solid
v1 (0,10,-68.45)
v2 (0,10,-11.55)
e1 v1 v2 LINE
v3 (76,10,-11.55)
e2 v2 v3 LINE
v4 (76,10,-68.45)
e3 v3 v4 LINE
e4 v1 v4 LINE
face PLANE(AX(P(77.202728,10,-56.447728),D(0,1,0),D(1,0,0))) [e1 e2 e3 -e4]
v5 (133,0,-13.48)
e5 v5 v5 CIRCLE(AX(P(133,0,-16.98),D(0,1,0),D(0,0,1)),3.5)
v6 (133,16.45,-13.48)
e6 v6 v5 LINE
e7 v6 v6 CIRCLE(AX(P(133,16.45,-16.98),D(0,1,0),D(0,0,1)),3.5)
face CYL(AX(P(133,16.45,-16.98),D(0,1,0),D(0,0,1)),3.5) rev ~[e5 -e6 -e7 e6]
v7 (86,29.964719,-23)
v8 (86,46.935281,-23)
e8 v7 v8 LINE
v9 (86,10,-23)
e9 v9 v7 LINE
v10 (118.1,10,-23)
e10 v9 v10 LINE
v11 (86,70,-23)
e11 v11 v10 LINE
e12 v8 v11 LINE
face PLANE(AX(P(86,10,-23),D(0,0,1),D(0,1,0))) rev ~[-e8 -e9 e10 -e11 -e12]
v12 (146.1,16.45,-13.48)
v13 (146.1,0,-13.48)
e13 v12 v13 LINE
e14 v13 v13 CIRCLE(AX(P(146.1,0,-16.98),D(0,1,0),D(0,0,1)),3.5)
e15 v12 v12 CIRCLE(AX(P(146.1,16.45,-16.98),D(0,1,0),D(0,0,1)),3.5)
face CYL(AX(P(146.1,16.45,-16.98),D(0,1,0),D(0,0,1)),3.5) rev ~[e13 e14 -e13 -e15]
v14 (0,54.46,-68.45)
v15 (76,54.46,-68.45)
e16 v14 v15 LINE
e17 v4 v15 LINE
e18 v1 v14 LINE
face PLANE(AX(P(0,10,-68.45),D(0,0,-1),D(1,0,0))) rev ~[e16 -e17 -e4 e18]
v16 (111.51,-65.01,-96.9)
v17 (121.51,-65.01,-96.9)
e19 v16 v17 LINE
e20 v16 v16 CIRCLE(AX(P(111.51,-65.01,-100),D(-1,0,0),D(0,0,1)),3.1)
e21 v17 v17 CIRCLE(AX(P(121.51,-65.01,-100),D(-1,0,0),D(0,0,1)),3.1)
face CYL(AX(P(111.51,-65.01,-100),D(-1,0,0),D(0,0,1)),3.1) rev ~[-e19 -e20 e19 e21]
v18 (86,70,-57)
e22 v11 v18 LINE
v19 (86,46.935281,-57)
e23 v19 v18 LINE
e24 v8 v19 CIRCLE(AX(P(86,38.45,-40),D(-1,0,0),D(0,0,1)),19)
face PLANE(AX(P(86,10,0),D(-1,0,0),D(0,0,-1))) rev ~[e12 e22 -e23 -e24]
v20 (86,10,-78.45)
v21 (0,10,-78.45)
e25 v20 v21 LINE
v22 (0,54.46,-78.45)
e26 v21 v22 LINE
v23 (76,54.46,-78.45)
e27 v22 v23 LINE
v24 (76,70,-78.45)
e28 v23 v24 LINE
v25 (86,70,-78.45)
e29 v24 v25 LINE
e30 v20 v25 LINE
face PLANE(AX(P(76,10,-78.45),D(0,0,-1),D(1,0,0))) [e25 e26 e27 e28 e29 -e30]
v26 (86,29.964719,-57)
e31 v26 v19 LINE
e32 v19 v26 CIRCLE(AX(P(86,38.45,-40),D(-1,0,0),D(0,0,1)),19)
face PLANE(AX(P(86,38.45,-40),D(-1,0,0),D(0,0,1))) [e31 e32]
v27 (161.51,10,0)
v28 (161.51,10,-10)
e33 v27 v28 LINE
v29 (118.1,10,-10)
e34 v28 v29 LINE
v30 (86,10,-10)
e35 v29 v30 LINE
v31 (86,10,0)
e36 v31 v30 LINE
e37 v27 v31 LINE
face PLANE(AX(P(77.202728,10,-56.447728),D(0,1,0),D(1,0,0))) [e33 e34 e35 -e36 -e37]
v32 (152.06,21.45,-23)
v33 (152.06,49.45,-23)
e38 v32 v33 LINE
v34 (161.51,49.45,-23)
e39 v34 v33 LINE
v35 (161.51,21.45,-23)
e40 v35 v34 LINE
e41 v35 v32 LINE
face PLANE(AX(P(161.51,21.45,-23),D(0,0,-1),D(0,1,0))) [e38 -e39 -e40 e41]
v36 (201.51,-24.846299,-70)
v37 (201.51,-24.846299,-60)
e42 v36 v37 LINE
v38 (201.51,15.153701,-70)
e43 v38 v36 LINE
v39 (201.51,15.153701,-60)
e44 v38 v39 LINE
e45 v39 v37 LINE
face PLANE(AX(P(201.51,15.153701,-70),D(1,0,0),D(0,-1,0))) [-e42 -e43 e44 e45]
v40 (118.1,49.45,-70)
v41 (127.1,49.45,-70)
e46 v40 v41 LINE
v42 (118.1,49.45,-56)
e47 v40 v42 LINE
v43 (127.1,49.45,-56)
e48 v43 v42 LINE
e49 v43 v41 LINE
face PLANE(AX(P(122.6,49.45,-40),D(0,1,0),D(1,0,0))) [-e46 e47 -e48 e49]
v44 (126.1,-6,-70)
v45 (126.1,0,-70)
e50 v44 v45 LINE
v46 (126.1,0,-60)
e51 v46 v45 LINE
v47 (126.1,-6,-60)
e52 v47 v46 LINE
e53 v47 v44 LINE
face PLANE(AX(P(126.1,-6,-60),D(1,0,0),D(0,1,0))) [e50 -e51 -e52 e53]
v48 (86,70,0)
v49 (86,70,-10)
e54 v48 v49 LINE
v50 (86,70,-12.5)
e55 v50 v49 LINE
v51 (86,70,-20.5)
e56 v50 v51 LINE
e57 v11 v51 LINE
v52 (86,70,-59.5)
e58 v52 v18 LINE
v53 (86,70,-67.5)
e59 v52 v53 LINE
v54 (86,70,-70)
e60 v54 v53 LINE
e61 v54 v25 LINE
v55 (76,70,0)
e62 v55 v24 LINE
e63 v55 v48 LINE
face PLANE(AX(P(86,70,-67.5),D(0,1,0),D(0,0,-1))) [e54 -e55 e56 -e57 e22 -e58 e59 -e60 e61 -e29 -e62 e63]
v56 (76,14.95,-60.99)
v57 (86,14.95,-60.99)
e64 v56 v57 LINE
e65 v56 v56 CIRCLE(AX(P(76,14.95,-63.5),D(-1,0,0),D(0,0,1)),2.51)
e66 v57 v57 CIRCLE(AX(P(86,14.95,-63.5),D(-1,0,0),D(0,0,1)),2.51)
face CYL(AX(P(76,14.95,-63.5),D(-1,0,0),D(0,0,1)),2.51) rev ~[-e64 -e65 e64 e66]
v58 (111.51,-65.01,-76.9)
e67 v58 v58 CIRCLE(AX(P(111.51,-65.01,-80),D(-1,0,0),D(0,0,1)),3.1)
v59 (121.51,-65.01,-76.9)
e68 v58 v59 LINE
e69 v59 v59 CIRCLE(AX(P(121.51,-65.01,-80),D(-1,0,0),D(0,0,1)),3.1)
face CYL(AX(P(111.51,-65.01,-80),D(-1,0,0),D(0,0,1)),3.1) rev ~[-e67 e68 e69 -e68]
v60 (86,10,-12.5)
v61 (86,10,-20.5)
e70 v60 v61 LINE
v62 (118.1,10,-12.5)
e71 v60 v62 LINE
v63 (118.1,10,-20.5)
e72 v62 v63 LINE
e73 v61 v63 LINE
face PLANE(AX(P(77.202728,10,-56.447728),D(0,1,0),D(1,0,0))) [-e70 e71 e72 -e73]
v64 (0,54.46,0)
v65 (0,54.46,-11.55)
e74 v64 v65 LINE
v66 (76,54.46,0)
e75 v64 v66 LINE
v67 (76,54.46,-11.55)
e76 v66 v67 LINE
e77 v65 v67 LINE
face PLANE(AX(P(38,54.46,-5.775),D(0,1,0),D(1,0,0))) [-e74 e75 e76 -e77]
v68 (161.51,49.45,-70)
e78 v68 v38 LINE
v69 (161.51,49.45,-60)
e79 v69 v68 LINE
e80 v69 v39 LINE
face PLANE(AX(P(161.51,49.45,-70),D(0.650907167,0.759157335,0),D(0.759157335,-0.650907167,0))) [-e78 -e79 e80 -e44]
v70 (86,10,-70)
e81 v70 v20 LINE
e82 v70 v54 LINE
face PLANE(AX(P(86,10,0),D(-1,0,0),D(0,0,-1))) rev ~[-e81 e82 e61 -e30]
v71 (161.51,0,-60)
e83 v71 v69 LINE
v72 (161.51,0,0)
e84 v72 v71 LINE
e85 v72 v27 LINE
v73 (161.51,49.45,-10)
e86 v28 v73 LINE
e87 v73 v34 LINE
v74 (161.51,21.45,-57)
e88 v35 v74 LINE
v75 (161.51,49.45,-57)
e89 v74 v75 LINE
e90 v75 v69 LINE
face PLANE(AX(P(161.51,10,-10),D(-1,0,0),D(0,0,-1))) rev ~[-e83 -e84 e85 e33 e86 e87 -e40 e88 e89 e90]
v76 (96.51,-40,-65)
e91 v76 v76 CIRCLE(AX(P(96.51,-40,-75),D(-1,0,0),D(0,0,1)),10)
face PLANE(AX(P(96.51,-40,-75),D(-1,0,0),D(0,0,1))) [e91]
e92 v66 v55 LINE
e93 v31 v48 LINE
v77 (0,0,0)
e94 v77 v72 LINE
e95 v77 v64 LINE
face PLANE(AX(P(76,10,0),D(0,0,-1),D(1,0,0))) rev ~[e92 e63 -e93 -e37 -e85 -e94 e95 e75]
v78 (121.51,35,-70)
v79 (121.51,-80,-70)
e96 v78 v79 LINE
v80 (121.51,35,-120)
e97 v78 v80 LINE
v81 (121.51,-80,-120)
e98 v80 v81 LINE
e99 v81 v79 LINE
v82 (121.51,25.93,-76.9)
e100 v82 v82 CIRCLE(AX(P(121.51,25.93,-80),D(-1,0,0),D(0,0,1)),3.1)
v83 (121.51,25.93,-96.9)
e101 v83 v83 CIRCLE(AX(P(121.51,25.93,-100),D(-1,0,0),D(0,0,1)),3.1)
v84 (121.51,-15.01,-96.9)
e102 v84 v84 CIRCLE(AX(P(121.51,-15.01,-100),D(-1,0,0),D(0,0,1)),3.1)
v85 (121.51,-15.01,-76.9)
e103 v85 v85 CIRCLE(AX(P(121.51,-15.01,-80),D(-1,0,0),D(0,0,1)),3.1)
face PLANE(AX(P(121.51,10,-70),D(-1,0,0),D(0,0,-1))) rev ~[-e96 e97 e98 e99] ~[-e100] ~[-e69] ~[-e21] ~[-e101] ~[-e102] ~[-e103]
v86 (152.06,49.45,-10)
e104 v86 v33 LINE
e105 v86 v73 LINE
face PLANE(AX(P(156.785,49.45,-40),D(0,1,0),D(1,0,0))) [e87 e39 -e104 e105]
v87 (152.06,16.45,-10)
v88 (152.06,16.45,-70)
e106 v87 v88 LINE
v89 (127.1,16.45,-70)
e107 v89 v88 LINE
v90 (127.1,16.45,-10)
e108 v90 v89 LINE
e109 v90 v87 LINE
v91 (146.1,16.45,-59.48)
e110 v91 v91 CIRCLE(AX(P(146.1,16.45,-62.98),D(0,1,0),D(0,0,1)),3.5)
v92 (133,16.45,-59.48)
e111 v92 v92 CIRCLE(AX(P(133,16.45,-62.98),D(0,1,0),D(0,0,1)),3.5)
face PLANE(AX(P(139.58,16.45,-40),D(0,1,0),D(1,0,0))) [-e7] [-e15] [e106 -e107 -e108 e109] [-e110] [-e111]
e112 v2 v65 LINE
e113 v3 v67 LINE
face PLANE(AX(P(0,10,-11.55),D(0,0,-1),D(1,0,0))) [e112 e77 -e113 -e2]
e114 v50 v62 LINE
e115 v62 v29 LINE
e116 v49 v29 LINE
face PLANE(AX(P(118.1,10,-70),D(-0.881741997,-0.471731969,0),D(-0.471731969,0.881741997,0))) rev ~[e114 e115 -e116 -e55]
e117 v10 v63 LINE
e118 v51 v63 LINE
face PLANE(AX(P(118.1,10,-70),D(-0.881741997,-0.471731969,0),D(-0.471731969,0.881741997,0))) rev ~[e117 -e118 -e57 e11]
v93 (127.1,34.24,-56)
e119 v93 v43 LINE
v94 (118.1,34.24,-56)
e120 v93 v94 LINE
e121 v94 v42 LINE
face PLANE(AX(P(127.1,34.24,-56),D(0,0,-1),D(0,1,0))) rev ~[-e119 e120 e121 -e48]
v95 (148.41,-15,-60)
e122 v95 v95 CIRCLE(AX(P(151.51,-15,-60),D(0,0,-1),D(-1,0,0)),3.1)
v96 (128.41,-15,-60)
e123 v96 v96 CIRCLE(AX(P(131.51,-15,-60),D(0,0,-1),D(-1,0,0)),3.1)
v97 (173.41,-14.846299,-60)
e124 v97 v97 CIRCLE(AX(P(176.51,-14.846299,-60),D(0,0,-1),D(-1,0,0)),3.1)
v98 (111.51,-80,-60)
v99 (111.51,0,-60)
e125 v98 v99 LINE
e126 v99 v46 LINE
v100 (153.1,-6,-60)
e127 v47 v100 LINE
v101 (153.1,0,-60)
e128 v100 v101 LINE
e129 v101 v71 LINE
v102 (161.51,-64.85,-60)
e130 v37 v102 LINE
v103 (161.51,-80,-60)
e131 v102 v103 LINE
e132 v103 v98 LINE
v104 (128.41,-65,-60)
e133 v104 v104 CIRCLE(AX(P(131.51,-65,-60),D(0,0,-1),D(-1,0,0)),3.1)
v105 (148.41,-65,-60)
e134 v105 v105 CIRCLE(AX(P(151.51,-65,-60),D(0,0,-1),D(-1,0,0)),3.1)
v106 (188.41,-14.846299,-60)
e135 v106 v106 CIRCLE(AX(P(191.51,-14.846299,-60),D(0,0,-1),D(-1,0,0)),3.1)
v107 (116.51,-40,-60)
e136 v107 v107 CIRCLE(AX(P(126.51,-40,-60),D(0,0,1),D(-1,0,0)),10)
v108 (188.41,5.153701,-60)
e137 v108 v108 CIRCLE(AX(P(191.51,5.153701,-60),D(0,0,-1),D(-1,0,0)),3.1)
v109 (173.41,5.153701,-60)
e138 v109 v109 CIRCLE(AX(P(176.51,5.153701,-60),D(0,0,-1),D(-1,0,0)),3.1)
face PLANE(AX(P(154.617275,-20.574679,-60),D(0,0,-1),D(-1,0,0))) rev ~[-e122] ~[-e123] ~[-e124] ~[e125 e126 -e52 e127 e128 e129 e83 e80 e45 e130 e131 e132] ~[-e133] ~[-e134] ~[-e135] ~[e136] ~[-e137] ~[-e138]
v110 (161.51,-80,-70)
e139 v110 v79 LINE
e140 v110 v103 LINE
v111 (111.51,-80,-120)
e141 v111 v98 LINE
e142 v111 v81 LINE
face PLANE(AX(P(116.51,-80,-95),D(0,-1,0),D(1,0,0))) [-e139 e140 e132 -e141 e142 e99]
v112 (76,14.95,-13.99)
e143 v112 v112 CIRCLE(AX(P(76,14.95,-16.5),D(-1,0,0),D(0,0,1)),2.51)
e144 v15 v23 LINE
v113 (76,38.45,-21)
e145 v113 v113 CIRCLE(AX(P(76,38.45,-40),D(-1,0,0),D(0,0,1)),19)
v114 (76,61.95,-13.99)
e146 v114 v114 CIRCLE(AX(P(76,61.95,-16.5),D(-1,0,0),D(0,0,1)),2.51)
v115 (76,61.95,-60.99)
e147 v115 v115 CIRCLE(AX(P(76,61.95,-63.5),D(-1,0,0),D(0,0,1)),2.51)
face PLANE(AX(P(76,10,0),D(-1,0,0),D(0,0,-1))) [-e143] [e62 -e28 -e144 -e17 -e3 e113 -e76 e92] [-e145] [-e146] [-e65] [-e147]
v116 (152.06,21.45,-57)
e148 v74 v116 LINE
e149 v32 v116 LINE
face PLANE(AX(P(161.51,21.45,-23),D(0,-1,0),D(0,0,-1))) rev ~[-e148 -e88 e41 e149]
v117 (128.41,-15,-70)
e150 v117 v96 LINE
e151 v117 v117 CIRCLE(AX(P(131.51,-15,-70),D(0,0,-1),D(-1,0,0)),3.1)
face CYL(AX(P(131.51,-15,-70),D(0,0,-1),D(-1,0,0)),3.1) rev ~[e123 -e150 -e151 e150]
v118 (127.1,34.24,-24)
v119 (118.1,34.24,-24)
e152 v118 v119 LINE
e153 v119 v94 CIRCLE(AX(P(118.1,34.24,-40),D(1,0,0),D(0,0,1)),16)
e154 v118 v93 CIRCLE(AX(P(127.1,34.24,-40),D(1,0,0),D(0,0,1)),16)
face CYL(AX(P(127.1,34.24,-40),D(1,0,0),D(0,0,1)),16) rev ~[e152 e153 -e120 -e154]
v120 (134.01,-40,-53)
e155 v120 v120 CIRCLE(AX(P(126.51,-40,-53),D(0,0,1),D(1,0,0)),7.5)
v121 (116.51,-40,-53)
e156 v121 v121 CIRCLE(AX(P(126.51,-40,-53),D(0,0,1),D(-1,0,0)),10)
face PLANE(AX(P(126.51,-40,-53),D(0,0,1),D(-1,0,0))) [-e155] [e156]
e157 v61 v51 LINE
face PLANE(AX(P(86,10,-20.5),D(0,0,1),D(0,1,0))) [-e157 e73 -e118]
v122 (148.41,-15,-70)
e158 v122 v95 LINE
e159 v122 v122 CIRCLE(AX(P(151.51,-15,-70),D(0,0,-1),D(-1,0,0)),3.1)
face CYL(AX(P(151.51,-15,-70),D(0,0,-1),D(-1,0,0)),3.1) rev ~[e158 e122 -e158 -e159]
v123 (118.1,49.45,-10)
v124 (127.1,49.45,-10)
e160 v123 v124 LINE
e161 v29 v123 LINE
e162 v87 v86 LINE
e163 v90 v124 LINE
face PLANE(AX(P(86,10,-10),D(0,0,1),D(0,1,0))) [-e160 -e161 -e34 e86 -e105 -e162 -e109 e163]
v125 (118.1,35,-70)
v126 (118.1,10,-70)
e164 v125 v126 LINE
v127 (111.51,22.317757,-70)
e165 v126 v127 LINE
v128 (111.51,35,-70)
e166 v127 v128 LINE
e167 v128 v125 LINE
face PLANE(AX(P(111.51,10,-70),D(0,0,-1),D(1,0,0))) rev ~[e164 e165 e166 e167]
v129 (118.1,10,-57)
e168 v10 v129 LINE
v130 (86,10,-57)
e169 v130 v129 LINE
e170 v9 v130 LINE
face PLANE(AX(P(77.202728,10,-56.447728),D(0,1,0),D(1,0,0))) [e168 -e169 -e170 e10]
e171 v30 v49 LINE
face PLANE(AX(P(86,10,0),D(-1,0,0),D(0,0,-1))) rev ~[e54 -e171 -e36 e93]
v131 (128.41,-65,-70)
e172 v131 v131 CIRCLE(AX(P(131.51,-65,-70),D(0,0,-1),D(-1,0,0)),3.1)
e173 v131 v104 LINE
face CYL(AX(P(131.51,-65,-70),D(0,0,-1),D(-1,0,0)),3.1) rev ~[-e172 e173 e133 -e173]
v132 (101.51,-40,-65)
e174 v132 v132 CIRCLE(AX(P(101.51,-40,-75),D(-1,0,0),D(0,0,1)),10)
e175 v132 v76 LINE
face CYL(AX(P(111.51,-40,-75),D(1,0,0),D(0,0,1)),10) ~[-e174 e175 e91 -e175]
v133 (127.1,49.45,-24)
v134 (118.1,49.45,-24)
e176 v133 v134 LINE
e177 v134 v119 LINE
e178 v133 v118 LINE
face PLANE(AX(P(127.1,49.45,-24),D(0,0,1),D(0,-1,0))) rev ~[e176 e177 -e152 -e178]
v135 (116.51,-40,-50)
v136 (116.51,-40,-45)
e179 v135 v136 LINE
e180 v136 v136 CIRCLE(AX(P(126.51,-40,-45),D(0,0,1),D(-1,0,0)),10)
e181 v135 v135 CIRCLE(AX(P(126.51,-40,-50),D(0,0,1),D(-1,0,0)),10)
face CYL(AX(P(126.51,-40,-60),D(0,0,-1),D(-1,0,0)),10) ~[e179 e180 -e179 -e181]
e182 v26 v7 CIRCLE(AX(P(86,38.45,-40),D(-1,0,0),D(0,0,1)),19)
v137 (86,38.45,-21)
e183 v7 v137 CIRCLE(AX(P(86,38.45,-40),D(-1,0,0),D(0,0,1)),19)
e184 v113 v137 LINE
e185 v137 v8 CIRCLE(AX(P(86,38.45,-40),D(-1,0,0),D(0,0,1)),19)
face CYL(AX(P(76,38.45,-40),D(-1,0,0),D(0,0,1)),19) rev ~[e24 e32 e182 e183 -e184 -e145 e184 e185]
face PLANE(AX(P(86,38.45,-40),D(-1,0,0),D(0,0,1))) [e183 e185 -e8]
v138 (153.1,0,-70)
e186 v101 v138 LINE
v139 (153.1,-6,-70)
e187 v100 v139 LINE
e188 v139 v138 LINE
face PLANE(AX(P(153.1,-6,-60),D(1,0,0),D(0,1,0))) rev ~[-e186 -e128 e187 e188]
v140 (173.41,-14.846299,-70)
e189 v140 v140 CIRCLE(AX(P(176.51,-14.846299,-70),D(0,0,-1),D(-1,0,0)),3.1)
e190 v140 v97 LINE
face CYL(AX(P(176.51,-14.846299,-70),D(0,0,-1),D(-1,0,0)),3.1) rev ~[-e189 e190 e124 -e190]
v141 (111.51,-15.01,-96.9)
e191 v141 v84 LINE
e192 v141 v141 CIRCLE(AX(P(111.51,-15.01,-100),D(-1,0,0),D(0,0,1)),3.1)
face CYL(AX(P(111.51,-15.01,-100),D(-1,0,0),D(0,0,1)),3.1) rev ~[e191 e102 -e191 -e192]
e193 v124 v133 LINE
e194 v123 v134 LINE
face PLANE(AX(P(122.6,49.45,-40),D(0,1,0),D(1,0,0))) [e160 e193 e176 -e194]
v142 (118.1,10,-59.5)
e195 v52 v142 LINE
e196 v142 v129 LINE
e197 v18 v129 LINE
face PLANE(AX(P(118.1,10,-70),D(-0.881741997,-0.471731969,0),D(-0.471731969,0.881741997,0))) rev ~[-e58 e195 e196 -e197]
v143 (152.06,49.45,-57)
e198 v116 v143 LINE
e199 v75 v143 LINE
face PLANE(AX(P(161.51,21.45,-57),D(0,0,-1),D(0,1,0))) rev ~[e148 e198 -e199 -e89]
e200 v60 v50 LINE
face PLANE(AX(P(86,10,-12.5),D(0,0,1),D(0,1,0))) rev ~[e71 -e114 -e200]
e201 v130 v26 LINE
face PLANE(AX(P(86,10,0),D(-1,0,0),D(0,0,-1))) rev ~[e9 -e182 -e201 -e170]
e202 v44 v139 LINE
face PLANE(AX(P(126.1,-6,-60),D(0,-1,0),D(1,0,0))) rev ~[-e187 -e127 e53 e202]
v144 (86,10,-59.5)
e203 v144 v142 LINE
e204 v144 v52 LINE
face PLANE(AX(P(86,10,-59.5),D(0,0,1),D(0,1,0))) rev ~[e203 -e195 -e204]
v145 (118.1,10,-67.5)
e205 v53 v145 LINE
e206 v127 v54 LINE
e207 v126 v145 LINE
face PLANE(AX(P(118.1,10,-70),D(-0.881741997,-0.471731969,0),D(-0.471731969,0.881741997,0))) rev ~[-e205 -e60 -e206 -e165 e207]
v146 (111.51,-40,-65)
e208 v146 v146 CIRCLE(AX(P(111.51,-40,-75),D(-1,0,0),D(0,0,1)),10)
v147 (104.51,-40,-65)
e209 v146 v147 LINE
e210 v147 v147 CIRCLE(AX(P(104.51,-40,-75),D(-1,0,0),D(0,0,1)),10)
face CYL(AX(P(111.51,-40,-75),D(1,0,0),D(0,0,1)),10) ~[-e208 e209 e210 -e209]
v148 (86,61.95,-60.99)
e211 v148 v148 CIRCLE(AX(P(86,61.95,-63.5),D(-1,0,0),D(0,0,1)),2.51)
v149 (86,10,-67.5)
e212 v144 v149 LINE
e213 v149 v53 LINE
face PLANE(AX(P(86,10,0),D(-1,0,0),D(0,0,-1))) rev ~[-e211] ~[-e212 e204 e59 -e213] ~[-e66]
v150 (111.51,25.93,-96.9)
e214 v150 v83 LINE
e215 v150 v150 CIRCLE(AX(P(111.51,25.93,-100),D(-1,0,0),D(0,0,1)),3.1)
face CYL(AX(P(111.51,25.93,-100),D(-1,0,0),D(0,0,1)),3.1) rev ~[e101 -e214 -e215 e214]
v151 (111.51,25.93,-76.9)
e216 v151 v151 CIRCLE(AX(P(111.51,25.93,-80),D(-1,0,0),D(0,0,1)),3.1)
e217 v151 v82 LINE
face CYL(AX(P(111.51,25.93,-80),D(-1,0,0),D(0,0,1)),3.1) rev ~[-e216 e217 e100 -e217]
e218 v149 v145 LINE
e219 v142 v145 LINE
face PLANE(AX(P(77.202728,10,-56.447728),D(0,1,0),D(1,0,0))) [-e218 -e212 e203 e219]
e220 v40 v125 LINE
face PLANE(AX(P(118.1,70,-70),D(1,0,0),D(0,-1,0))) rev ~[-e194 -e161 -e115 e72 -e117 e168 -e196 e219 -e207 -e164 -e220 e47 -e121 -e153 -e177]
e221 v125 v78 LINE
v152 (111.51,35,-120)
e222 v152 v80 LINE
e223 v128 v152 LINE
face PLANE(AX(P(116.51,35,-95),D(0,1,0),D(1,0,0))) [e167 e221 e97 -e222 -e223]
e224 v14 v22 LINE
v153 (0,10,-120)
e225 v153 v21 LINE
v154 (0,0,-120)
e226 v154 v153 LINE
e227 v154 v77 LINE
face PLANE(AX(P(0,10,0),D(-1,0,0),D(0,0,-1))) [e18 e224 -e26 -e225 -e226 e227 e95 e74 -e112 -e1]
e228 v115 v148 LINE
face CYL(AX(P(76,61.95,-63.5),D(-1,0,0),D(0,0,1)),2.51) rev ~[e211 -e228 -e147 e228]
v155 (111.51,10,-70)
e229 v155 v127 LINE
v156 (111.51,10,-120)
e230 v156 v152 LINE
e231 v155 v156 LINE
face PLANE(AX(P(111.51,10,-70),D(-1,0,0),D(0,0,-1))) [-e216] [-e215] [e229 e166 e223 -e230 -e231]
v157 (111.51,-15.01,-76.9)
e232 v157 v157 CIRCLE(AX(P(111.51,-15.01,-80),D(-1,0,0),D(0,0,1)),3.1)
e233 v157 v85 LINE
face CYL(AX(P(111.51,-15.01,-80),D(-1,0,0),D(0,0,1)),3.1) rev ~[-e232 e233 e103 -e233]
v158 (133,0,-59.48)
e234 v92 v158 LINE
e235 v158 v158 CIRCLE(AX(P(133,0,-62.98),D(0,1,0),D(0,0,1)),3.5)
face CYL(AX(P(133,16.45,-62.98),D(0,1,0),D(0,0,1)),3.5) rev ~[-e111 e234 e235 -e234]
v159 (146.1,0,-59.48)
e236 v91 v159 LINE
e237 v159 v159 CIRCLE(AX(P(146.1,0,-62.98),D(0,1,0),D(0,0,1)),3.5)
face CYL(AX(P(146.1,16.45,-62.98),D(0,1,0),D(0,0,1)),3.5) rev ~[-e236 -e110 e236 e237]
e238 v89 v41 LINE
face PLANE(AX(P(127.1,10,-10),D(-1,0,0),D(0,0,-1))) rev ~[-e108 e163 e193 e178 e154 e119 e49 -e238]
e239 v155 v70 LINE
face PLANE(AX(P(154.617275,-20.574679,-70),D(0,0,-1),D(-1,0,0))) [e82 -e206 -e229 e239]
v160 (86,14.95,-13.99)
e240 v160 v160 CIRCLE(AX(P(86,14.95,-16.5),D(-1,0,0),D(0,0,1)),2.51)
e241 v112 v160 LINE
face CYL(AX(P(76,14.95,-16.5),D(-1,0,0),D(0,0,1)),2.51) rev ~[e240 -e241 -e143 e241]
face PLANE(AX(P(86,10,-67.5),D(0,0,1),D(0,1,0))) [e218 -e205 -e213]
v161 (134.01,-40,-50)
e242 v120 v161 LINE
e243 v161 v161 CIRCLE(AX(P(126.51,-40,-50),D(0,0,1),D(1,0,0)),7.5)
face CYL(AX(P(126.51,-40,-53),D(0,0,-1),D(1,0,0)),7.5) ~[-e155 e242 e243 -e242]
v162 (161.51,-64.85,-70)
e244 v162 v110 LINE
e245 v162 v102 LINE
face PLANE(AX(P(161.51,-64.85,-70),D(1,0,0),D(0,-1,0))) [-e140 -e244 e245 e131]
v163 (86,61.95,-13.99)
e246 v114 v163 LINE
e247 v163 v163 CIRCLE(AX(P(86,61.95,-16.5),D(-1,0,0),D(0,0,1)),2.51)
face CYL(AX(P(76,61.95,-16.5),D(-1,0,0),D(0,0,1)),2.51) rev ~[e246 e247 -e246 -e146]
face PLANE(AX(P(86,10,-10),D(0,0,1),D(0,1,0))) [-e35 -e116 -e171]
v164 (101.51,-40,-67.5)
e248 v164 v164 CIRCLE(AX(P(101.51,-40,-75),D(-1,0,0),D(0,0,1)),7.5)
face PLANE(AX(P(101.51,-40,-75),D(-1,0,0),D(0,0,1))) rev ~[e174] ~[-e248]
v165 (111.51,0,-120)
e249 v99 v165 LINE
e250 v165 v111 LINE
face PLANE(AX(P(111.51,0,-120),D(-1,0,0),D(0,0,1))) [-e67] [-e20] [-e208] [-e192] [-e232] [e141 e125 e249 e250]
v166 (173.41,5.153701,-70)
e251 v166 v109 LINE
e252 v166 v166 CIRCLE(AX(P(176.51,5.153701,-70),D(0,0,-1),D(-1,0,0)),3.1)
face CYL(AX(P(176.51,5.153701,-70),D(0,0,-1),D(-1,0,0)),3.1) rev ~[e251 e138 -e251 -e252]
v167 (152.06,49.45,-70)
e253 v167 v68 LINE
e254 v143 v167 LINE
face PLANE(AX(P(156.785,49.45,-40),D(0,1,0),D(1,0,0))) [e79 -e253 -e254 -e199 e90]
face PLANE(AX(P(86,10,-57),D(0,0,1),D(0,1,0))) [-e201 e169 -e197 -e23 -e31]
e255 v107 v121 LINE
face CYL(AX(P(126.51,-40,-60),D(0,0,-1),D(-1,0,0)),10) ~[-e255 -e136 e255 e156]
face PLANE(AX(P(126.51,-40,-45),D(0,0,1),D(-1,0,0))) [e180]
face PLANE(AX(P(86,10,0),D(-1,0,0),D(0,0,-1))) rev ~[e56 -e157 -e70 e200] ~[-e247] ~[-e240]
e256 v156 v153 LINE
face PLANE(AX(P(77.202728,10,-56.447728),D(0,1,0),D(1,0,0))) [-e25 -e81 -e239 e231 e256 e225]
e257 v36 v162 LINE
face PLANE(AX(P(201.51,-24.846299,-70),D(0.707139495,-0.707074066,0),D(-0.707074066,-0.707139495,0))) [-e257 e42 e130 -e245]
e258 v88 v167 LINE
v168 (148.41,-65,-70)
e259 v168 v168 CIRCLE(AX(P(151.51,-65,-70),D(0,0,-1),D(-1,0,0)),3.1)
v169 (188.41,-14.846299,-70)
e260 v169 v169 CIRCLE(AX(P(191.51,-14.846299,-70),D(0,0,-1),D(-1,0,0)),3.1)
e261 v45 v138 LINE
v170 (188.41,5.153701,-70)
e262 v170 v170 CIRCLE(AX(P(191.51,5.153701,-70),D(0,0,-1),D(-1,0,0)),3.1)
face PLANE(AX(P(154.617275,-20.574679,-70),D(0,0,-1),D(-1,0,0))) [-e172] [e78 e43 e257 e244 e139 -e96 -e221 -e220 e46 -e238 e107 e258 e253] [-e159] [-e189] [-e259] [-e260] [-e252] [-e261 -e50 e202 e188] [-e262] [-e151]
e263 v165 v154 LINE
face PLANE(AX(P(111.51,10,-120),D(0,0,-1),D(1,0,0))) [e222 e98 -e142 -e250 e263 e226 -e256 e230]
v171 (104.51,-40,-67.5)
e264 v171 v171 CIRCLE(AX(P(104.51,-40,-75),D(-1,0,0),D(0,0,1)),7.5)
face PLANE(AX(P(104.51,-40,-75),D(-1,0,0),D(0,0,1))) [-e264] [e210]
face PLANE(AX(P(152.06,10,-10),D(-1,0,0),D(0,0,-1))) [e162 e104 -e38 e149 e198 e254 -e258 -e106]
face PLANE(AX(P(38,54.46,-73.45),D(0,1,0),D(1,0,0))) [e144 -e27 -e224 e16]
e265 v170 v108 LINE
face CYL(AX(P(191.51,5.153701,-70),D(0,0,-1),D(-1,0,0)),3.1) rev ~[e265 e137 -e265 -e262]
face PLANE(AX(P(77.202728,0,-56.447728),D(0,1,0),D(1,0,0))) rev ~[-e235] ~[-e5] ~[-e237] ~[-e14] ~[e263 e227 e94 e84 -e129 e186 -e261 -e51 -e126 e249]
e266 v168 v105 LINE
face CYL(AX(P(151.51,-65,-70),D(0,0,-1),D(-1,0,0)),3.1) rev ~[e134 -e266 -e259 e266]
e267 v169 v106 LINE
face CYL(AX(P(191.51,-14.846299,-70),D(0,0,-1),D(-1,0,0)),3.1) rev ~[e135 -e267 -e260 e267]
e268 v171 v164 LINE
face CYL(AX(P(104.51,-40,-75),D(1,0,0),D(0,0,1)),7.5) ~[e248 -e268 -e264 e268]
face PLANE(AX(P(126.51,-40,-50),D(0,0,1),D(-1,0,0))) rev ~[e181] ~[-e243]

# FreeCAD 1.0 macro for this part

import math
import FreeCAD as App
import Part
import Sketcher


def add_polygon(sketch, points):
    """Adds a closed chain of lines whose ends are joined by coincident constraints."""
    first, n = sketch.GeometryCount, len(points)
    for a, b in zip(points, points[1:] + points[:1]):
        sketch.addGeometry(Part.LineSegment(App.Vector(*a, 0), App.Vector(*b, 0)), False)
    for i in range(n):
        sketch.addConstraint(Sketcher.Constraint("Coincident", first + i, 2, first + (i + 1) % n, 1))

doc = App.newDocument("Part")
body = doc.addObject("PartDesign::Body", "Body")

# Sketch on XZ plane
sketch1 = doc.addObject("Sketcher::SketchObject", "Sketch")
body.addObject(sketch1)
sketch1.AttachmentSupport = (doc.XZ_Plane, [""])
sketch1.MapMode = "FlatFace"
add_polygon(sketch1, [(0, 0), (162, 0), (162, -70), (122, -70), (122, -120), (0, -120)])  # lines 0-5
sketch1.addConstraint([
    Sketcher.Constraint("Horizontal", 0),
    Sketcher.Constraint("Vertical", 1),
    Sketcher.Constraint("Horizontal", 2),
    Sketcher.Constraint("Vertical", 3),
    Sketcher.Constraint("Horizontal", 4),
    Sketcher.Constraint("Vertical", 5),
    Sketcher.Constraint("Coincident", 5, 2, -1, 1),
    Sketcher.Constraint("DistanceX", 2, 2, 2, 1, 40.0),
    Sketcher.Constraint("DistanceY", 1, 2, 1, 1, 70.0),
    Sketcher.Constraint("DistanceY", 3, 2, 3, 1, 50.0),
    Sketcher.Constraint("DistanceX", 0, 1, 0, 2, 161.51),
])
pad1 = doc.addObject("PartDesign::Pad", "Pad")
body.addObject(pad1)
pad1.Profile = sketch1
pad1.Length = 10
pad1.Reversed = True

# Sketch on XZ plane
sketch2 = doc.addObject("Sketcher::SketchObject", "Sketch001")
body.addObject(sketch2)
sketch2.AttachmentSupport = (doc.XZ_Plane, [""])
sketch2.MapMode = "FlatFace"
sketch2.AttachmentOffset = App.Placement(App.Vector(0, 0, -10), App.Rotation())
add_polygon(sketch2, [(152, -70), (152, -10), (162, -10), (162, -70)])  # lines 0-3
sketch2.addConstraint([
    Sketcher.Constraint("Vertical", 0),
    Sketcher.Constraint("Horizontal", 1),
    Sketcher.Constraint("Vertical", 2),
    Sketcher.Constraint("Horizontal", 3),
    Sketcher.Constraint("DistanceY", 0, 1, 0, 2, 60.0),
    Sketcher.Constraint("DistanceY", 0, 2, -1, 1, 10.0),
    Sketcher.Constraint("DistanceX", 1, 1, 1, 2, 9.45),
    Sketcher.Constraint("DistanceX", -1, 1, 0, 2, 152.06),
])
pad2 = doc.addObject("PartDesign::Pad", "Pad001")
body.addObject(pad2)
pad2.Profile = sketch2
pad2.Length = 39.45
pad2.Reversed = True

# Sketch on XZ plane
sketch3 = doc.addObject("Sketcher::SketchObject", "Sketch002")
body.addObject(sketch3)
sketch3.AttachmentSupport = (doc.XZ_Plane, [""])
sketch3.MapMode = "FlatFace"
sketch3.AttachmentOffset = App.Placement(App.Vector(0, 0, -10), App.Rotation())
add_polygon(sketch3, [(127, -70), (127, -10), (152, -10), (152, -70)])  # lines 0-3
sketch3.addConstraint([
    Sketcher.Constraint("Vertical", 0),
    Sketcher.Constraint("Horizontal", 1),
    Sketcher.Constraint("Vertical", 2),
    Sketcher.Constraint("Horizontal", 3),
    Sketcher.Constraint("DistanceY", 0, 1, 0, 2, 60.0),
    Sketcher.Constraint("DistanceY", 0, 2, -1, 1, 10.0),
    Sketcher.Constraint("DistanceX", 1, 1, 1, 2, 24.96),
    Sketcher.Constraint("DistanceX", -1, 1, 0, 2, 127.1),
])
pad3 = doc.addObject("PartDesign::Pad", "Pad002")
body.addObject(pad3)
pad3.Profile = sketch3
pad3.Length = 6.45
pad3.Reversed = True

# Sketch on XZ plane
sketch4 = doc.addObject("Sketcher::SketchObject", "Sketch003")
body.addObject(sketch4)
sketch4.AttachmentSupport = (doc.XZ_Plane, [""])
sketch4.MapMode = "FlatFace"
sketch4.AttachmentOffset = App.Placement(App.Vector(0, 0, -10), App.Rotation())
add_polygon(sketch4, [(118, -70), (118, -10), (127, -10), (127, -70)])  # lines 0-3
sketch4.addConstraint([
    Sketcher.Constraint("Vertical", 0),
    Sketcher.Constraint("Horizontal", 1),
    Sketcher.Constraint("Vertical", 2),
    Sketcher.Constraint("Horizontal", 3),
    Sketcher.Constraint("DistanceX", 1, 1, 1, 2, 9.0),
    Sketcher.Constraint("DistanceY", 0, 1, 0, 2, 60.0),
    Sketcher.Constraint("DistanceY", 0, 2, -1, 1, 10.0),
    Sketcher.Constraint("DistanceX", -1, 1, 0, 2, 118.1),
])
pad4 = doc.addObject("PartDesign::Pad", "Pad003")
body.addObject(pad4)
pad4.Profile = sketch4
pad4.Length = 39.45
pad4.Reversed = True

# Sketch on YZ plane
sketch5 = doc.addObject("Sketcher::SketchObject", "Sketch004")
body.addObject(sketch5)
sketch5.AttachmentSupport = (doc.YZ_Plane, [""])
sketch5.MapMode = "FlatFace"
sketch5.AttachmentOffset = App.Placement(App.Vector(0, 0, 161.51), App.Rotation())
add_polygon(sketch5, [(49, -23), (21, -23), (21, -57), (49, -57)])  # lines 0-3
sketch5.addConstraint([
    Sketcher.Constraint("Horizontal", 0),
    Sketcher.Constraint("Vertical", 1),
    Sketcher.Constraint("Horizontal", 2),
    Sketcher.Constraint("Vertical", 3),
    Sketcher.Constraint("DistanceX", 0, 2, 0, 1, 28.0),
    Sketcher.Constraint("DistanceY", 1, 2, 1, 1, 34.0),
    Sketcher.Constraint("DistanceY", 0, 2, -1, 1, 23.0),
    Sketcher.Constraint("DistanceX", -1, 1, 0, 2, 21.45),
])
pocket1 = doc.addObject("PartDesign::Pocket", "Pocket")
body.addObject(pocket1)
pocket1.Profile = sketch5
pocket1.Type = "UpToFirst"

# Sketch on YZ plane
sketch6 = doc.addObject("Sketcher::SketchObject", "Sketch005")
body.addObject(sketch6)
sketch6.AttachmentSupport = (doc.YZ_Plane, [""])
sketch6.MapMode = "FlatFace"
sketch6.AttachmentOffset = App.Placement(App.Vector(0, 0, 127.1), App.Rotation())
sketch6.addGeometry([
    Part.LineSegment(App.Vector(49, -24, 0), App.Vector(34, -24, 0)),
    Part.ArcOfCircle(Part.Circle(App.Vector(34, -40, 0), App.Vector(0, 0, 1), 16), math.radians(90), math.radians(270)),
    Part.LineSegment(App.Vector(34, -56, 0), App.Vector(49, -56, 0)),
    Part.LineSegment(App.Vector(49, -56, 0), App.Vector(49, -24, 0)),
], False)
sketch6.addConstraint([
    Sketcher.Constraint("Tangent", 0, 2, 1, 1),
    Sketcher.Constraint("Tangent", 1, 2, 2, 1),
    Sketcher.Constraint("Coincident", 2, 2, 3, 1),
    Sketcher.Constraint("Coincident", 3, 2, 0, 1),
    Sketcher.Constraint("Horizontal", 0),
    Sketcher.Constraint("Horizontal", 2),
    Sketcher.Constraint("Vertical", 3),
    Sketcher.Constraint("Radius", 1, 16.0),
    Sketcher.Constraint("DistanceY", 1, 3, -1, 1, 40.0),
    Sketcher.Constraint("DistanceX", 0, 2, 0, 1, 15.21),
    Sketcher.Constraint("DistanceX", -1, 1, 1, 3, 34.24),
])
pocket2 = doc.addObject("PartDesign::Pocket", "Pocket001")
body.addObject(pocket2)
pocket2.Profile = sketch6
pocket2.Type = "UpToFirst"

# Sketch on XZ plane
sketch7 = doc.addObject("Sketcher::SketchObject", "Sketch006")
body.addObject(sketch7)
sketch7.AttachmentSupport = (doc.XZ_Plane, [""])
sketch7.MapMode = "FlatFace"
sketch7.AttachmentOffset = App.Placement(App.Vector(0, 0, -10), App.Rotation())
add_polygon(sketch7, [(0, -12), (0, 0), (76, 0), (76, -12)])  # lines 0-3
sketch7.addConstraint([
    Sketcher.Constraint("Vertical", 0),
    Sketcher.Constraint("Horizontal", 1),
    Sketcher.Constraint("Vertical", 2),
    Sketcher.Constraint("Horizontal", 3),
    Sketcher.Constraint("Coincident", 0, 2, -1, 1),
    Sketcher.Constraint("DistanceX", 1, 1, 1, 2, 76.0),
    Sketcher.Constraint("DistanceY", 0, 1, 0, 2, 11.55),
])
pad5 = doc.addObject("PartDesign::Pad", "Pad004")
body.addObject(pad5)
pad5.Profile = sketch7
pad5.Length = 44.46
pad5.Reversed = True

# Sketch on XZ plane
sketch8 = doc.addObject("Sketcher::SketchObject", "Sketch007")
body.addObject(sketch8)
sketch8.AttachmentSupport = (doc.XZ_Plane, [""])
sketch8.MapMode = "FlatFace"
sketch8.AttachmentOffset = App.Placement(App.Vector(0, 0, -10), App.Rotation())
add_polygon(sketch8, [(0, -78), (0, -68), (76, -68), (76, -78)])  # lines 0-3
sketch8.addConstraint([
    Sketcher.Constraint("Vertical", 0),
    Sketcher.Constraint("Horizontal", 1),
    Sketcher.Constraint("Vertical", 2),
    Sketcher.Constraint("Horizontal", 3),
    Sketcher.Constraint("PointOnObject", 0, 2, -2),
    Sketcher.Constraint("DistanceX", 1, 1, 1, 2, 76.0),
    Sketcher.Constraint("DistanceY", 0, 1, 0, 2, 10.0),
    Sketcher.Constraint("DistanceY", 0, 2, -1, 1, 68.45),
])
pad6 = doc.addObject("PartDesign::Pad", "Pad005")
body.addObject(pad6)
pad6.Profile = sketch8
pad6.Length = 44.46
pad6.Reversed = True

# Sketch on XZ plane
sketch9 = doc.addObject("Sketcher::SketchObject", "Sketch008")
body.addObject(sketch9)
sketch9.AttachmentSupport = (doc.XZ_Plane, [""])
sketch9.MapMode = "FlatFace"
sketch9.AttachmentOffset = App.Placement(App.Vector(0, 0, -10), App.Rotation())
add_polygon(sketch9, [(76, -78), (76, 0), (86, 0), (86, -78)])  # lines 0-3
sketch9.addConstraint([
    Sketcher.Constraint("Vertical", 0),
    Sketcher.Constraint("Horizontal", 1),
    Sketcher.Constraint("Vertical", 2),
    Sketcher.Constraint("Horizontal", 3),
    Sketcher.Constraint("PointOnObject", 0, 2, -1),
    Sketcher.Constraint("DistanceX", 1, 1, 1, 2, 10.0),
    Sketcher.Constraint("DistanceX", -1, 1, 0, 2, 76.0),
    Sketcher.Constraint("DistanceY", 0, 1, 0, 2, 78.45),
])
pad7 = doc.addObject("PartDesign::Pad", "Pad006")
body.addObject(pad7)
pad7.Profile = sketch9
pad7.Length = 60
pad7.Reversed = True

# Sketch on YZ plane
sketch10 = doc.addObject("Sketcher::SketchObject", "Sketch009")
body.addObject(sketch10)
sketch10.AttachmentSupport = (doc.YZ_Plane, [""])
sketch10.MapMode = "FlatFace"
sketch10.AttachmentOffset = App.Placement(App.Vector(0, 0, 86), App.Rotation())
add_polygon(sketch10, [(70, -67.5), (10, -67.5), (10, -70), (70, -70)])  # lines 0-3
add_polygon(sketch10, [(70, -57), (10, -57), (10, -59.5), (70, -59.5)])  # lines 4-7
add_polygon(sketch10, [(70, -20.5), (10, -20.5), (10, -23), (70, -23)])  # lines 8-11
add_polygon(sketch10, [(70, -10), (10, -10), (10, -12.5), (70, -12.5)])  # lines 12-15
sketch10.addConstraint([
    Sketcher.Constraint("Horizontal", 0),
    Sketcher.Constraint("Vertical", 1),
    Sketcher.Constraint("Horizontal", 2),
    Sketcher.Constraint("Vertical", 3),
    Sketcher.Constraint("Horizontal", 4),
    Sketcher.Constraint("Vertical", 5),
    Sketcher.Constraint("Horizontal", 6),
    Sketcher.Constraint("Vertical", 7),
    Sketcher.Constraint("Horizontal", 8),
    Sketcher.Constraint("Vertical", 9),
    Sketcher.Constraint("Horizontal", 10),
    Sketcher.Constraint("Vertical", 11),
    Sketcher.Constraint("Horizontal", 12),
    Sketcher.Constraint("Vertical", 13),
    Sketcher.Constraint("Horizontal", 14),
    Sketcher.Constraint("Vertical", 15),
    Sketcher.Constraint("Vertical", 1, 2, 4, 2),
    Sketcher.Constraint("Vertical", 3, 2, 6, 2),
    Sketcher.Constraint("Vertical", 5, 2, 8, 2),
    Sketcher.Constraint("Vertical", 7, 2, 10, 2),
    Sketcher.Constraint("Vertical", 9, 2, 12, 2),
    Sketcher.Constraint("Vertical", 11, 2, 14, 2),
    Sketcher.Constraint("Equal", 3, 5),
    Sketcher.Constraint("Equal", 7, 9),
    Sketcher.Constraint("Equal", 11, 13),
    Sketcher.Constraint("DistanceX", 0, 2, 0, 1, 60.0),
    Sketcher.Constraint("DistanceY", 1, 2, 1, 1, 2.5),
    Sketcher.Constraint("DistanceX", -1, 1, 0, 2, 10.0),
    Sketcher.Constraint("DistanceY", 1, 2, -1, 1, 70.0),
    Sketcher.Constraint("DistanceY", 4, 2, -1, 1, 57.0),
    Sketcher.Constraint("DistanceY", 9, 2, -1, 1, 23.0),
    Sketcher.Constraint("DistanceY", 12, 2, -1, 1, 10.0),
])
pad8 = doc.addObject("PartDesign::Pad", "Pad007")
body.addObject(pad8)
pad8.Profile = sketch10
pad8.Length = 32.1

# Sketch on XY plane
sketch11 = doc.addObject("Sketcher::SketchObject", "Sketch010")
body.addObject(sketch11)
sketch11.AttachmentSupport = (doc.XY_Plane, [""])
sketch11.MapMode = "FlatFace"
sketch11.AttachmentOffset = App.Placement(App.Vector(0, 0, -70), App.Rotation())
add_polygon(sketch11, [(112, 0), (162, 0), (162, 49), (202, 15), (202, -25), (162, -65), (162, -80), (112, -80)])  # lines 0-7
sketch11.addConstraint([
    Sketcher.Constraint("Horizontal", 0),
    Sketcher.Constraint("Vertical", 1),
    Sketcher.Constraint("Vertical", 3),
    Sketcher.Constraint("Vertical", 5),
    Sketcher.Constraint("Horizontal", 6),
    Sketcher.Constraint("Vertical", 7),
    Sketcher.Constraint("PointOnObject", 0, 2, -1),
    Sketcher.Constraint("Vertical", 1, 2, 4, 2),
    Sketcher.Constraint("DistanceX", 0, 1, 0, 2, 50.0),
    Sketcher.Constraint("DistanceY", 3, 2, 3, 1, 40.0),
    Sketcher.Constraint("DistanceY", 7, 1, 7, 2, 80.0),
    Sketcher.Constraint("DistanceX", 0, 2, 2, 2, 40.0),
    Sketcher.Constraint("DistanceY", 1, 1, 1, 2, 49.45),
    Sketcher.Constraint("DistanceY", 5, 2, 5, 1, 15.15),
    Sketcher.Constraint("Distance", 2, 52.69),
    Sketcher.Constraint("DistanceX", -1, 1, 0, 2, 161.51),
])
pad9 = doc.addObject("PartDesign::Pad", "Pad008")
body.addObject(pad9)
pad9.Profile = sketch11
pad9.Length = 10

# Sketch on XY plane
sketch12 = doc.addObject("Sketcher::SketchObject", "Sketch011")
body.addObject(sketch12)
sketch12.AttachmentSupport = (doc.XY_Plane, [""])
sketch12.MapMode = "FlatFace"
sketch12.AttachmentOffset = App.Placement(App.Vector(0, 0, -70), App.Rotation())
add_polygon(sketch12, [(86, 70), (118, 70), (118, 10)])  # lines 0-2
sketch12.addConstraint([
    Sketcher.Constraint("Horizontal", 0),
    Sketcher.Constraint("Vertical", 1),
    Sketcher.Constraint("DistanceY", 1, 2, 1, 1, 60.0),
    Sketcher.Constraint("DistanceX", 0, 1, 0, 2, 32.1),
    Sketcher.Constraint("DistanceY", -1, 1, 0, 2, 70.0),
    Sketcher.Constraint("DistanceX", -1, 1, 2, 2, 86.0),
])
pocket3 = doc.addObject("PartDesign::Pocket", "Pocket002")
body.addObject(pocket3)
pocket3.Profile = sketch12
pocket3.Type = "ThroughAll"
pocket3.Reversed = True

# Sketch on XZ plane
sketch13 = doc.addObject("Sketcher::SketchObject", "Sketch012")
body.addObject(sketch13)
sketch13.AttachmentSupport = (doc.XZ_Plane, [""])
sketch13.MapMode = "FlatFace"
add_polygon(sketch13, [(112, -70), (112, -120), (122, -120), (122, -70)])  # lines 0-3
sketch13.addConstraint([
    Sketcher.Constraint("Vertical", 0),
    Sketcher.Constraint("Horizontal", 1),
    Sketcher.Constraint("Vertical", 2),
    Sketcher.Constraint("Horizontal", 3),
    Sketcher.Constraint("DistanceX", 1, 1, 1, 2, 10.0),
    Sketcher.Constraint("DistanceY", 0, 2, 0, 1, 50.0),
    Sketcher.Constraint("DistanceY", 0, 2, -1, 1, 120.0),
    Sketcher.Constraint("DistanceX", -1, 1, 0, 2, 111.51),
])
pad10 = doc.addObject("PartDesign::Pad", "Pad009")
body.addObject(pad10)
pad10.Profile = sketch13
pad10.Length = 80

# Sketch on XZ plane
sketch14 = doc.addObject("Sketcher::SketchObject", "Sketch013")
body.addObject(sketch14)
sketch14.AttachmentSupport = (doc.XZ_Plane, [""])
sketch14.MapMode = "FlatFace"
sketch14.AttachmentOffset = App.Placement(App.Vector(0, 0, -10), App.Rotation())
add_polygon(sketch14, [(112, -120), (112, -70), (122, -70), (122, -120)])  # lines 0-3
sketch14.addConstraint([
    Sketcher.Constraint("Vertical", 0),
    Sketcher.Constraint("Horizontal", 1),
    Sketcher.Constraint("Vertical", 2),
    Sketcher.Constraint("Horizontal", 3),
    Sketcher.Constraint("DistanceX", 1, 1, 1, 2, 10.0),
    Sketcher.Constraint("DistanceY", 0, 1, 0, 2, 50.0),
    Sketcher.Constraint("DistanceY", 0, 2, -1, 1, 70.0),
    Sketcher.Constraint("DistanceX", -1, 1, 0, 2, 111.51),
])
pad11 = doc.addObject("PartDesign::Pad", "Pad010")
body.addObject(pad11)
pad11.Profile = sketch14
pad11.Length = 25
pad11.Reversed = True

# Sketch on XZ plane
sketch15 = doc.addObject("Sketcher::SketchObject", "Sketch014")
body.addObject(sketch15)
sketch15.AttachmentSupport = (doc.XZ_Plane, [""])
sketch15.MapMode = "FlatFace"
sketch15.AttachmentOffset = App.Placement(App.Vector(0, 0, -16.45), App.Rotation())
sketch15.addGeometry([
    Part.Circle(App.Vector(146.1, -63, 0), App.Vector(0, 0, 1), 3.5),
    Part.Circle(App.Vector(133, -63, 0), App.Vector(0, 0, 1), 3.5),
    Part.Circle(App.Vector(133, -17, 0), App.Vector(0, 0, 1), 3.5),
    Part.Circle(App.Vector(146.1, -17, 0), App.Vector(0, 0, 1), 3.5),
], False)
sketch15.addConstraint([
    Sketcher.Constraint("Equal", 0, 1),
    Sketcher.Constraint("Equal", 1, 2),
    Sketcher.Constraint("Equal", 2, 3),
    Sketcher.Constraint("Horizontal", 0, 3, 1, 3),
    Sketcher.Constraint("Horizontal", 2, 3, 3, 3),
    Sketcher.Constraint("Vertical", 1, 3, 2, 3),
    Sketcher.Constraint("Vertical", 0, 3, 3, 3),
    Sketcher.Constraint("Diameter", 0, 7.0),
    Sketcher.Constraint("DistanceX", -1, 1, 1, 3, 133.0),
    Sketcher.Constraint("DistanceY", 1, 3, 2, 3, 46.0),
    Sketcher.Constraint("DistanceX", -1, 1, 0, 3, 146.1),
    Sketcher.Constraint("DistanceY", 0, 3, -1, 1, 62.98),
])
pocket4 = doc.addObject("PartDesign::Pocket", "Pocket003")
body.addObject(pocket4)
pocket4.Profile = sketch15
pocket4.Length = 20
pocket4.Reversed = True

# Sketch on XY plane
sketch16 = doc.addObject("Sketcher::SketchObject", "Sketch015")
body.addObject(sketch16)
sketch16.AttachmentSupport = (doc.XY_Plane, [""])
sketch16.MapMode = "FlatFace"
sketch16.AttachmentOffset = App.Placement(App.Vector(0, 0, -60), App.Rotation())
add_polygon(sketch16, [(126, 0), (126, -6), (153, -6), (153, 0)])  # lines 0-3
sketch16.addConstraint([
    Sketcher.Constraint("Vertical", 0),
    Sketcher.Constraint("Horizontal", 1),
    Sketcher.Constraint("Vertical", 2),
    Sketcher.Constraint("Horizontal", 3),
    Sketcher.Constraint("PointOnObject", 2, 2, -1),
    Sketcher.Constraint("DistanceX", 1, 1, 1, 2, 27.0),
    Sketcher.Constraint("DistanceY", 0, 2, 0, 1, 6.0),
    Sketcher.Constraint("DistanceX", -1, 1, 0, 2, 126.1),
])
pocket5 = doc.addObject("PartDesign::Pocket", "Pocket004")
body.addObject(pocket5)
pocket5.Profile = sketch16
pocket5.Length = 10

# Sketch on YZ plane
sketch17 = doc.addObject("Sketcher::SketchObject", "Sketch016")
body.addObject(sketch17)
sketch17.AttachmentSupport = (doc.YZ_Plane, [""])
sketch17.MapMode = "FlatFace"
sketch17.AttachmentOffset = App.Placement(App.Vector(0, 0, 76), App.Rotation())
sketch17.addGeometry([
    Part.Circle(App.Vector(62, -16.5, 0), App.Vector(0, 0, 1), 2.5),  # 0
    Part.Circle(App.Vector(62, -63.5, 0), App.Vector(0, 0, 1), 2.5),  # 1
    Part.Circle(App.Vector(14.9, -63.5, 0), App.Vector(0, 0, 1), 2.5),  # 2
    Part.Circle(App.Vector(14.9, -16.5, 0), App.Vector(0, 0, 1), 2.5),  # 3
    Part.Circle(App.Vector(38.5, -40, 0), App.Vector(0, 0, 1), 19),  # 4
], False)
sketch17.addConstraint([
    Sketcher.Constraint("Equal", 0, 1),
    Sketcher.Constraint("Equal", 1, 2),
    Sketcher.Constraint("Equal", 2, 3),
    Sketcher.Constraint("Horizontal", 1, 3, 2, 3),
    Sketcher.Constraint("Horizontal", 0, 3, 3, 3),
    Sketcher.Constraint("Vertical", 0, 3, 1, 3),
    Sketcher.Constraint("Vertical", 2, 3, 3, 3),
    Sketcher.Constraint("Diameter", 4, 38.0),
    Sketcher.Constraint("Diameter", 0, 5.02),
    Sketcher.Constraint("DistanceY", 4, 3, -1, 1, 40.0),
    Sketcher.Constraint("DistanceY", 1, 3, 0, 3, 47.0),
    Sketcher.Constraint("DistanceX", 2, 3, 1, 3, 47.0),
    Sketcher.Constraint("DistanceY", 0, 3, -1, 1, 16.5),
    Sketcher.Constraint("DistanceX", 4, 3, 0, 3, 23.5),
    Sketcher.Constraint("DistanceX", -1, 1, 0, 3, 61.95),
])
pocket6 = doc.addObject("PartDesign::Pocket", "Pocket005")
body.addObject(pocket6)
pocket6.Profile = sketch17
pocket6.Length = 10
pocket6.Reversed = True

# Sketch on XY plane
sketch18 = doc.addObject("Sketcher::SketchObject", "Sketch017")
body.addObject(sketch18)
sketch18.AttachmentSupport = (doc.XY_Plane, [""])
sketch18.MapMode = "FlatFace"
sketch18.AttachmentOffset = App.Placement(App.Vector(0, 0, -70), App.Rotation())
sketch18.addGeometry([
    Part.Circle(App.Vector(131.5, -15, 0), App.Vector(0, 0, 1), 3.1),  # 0
    Part.Circle(App.Vector(151.5, -15, 0), App.Vector(0, 0, 1), 3.1),  # 1
    Part.Circle(App.Vector(151.5, -65, 0), App.Vector(0, 0, 1), 3.1),  # 2
    Part.Circle(App.Vector(131.5, -65, 0), App.Vector(0, 0, 1), 3.1),  # 3
    Part.Circle(App.Vector(191.5, 5.2, 0), App.Vector(0, 0, 1), 3.1),  # 4
    Part.Circle(App.Vector(176.5, 5.2, 0), App.Vector(0, 0, 1), 3.1),  # 5
    Part.Circle(App.Vector(176.5, -14.8, 0), App.Vector(0, 0, 1), 3.1),  # 6
    Part.Circle(App.Vector(191.5, -14.8, 0), App.Vector(0, 0, 1), 3.1),  # 7
], False)
sketch18.addConstraint([
    Sketcher.Constraint("Equal", 0, 1),
    Sketcher.Constraint("Equal", 1, 2),
    Sketcher.Constraint("Equal", 2, 3),
    Sketcher.Constraint("Equal", 3, 4),
    Sketcher.Constraint("Equal", 4, 5),
    Sketcher.Constraint("Equal", 5, 6),
    Sketcher.Constraint("Equal", 6, 7),
    Sketcher.Constraint("Horizontal", 0, 3, 1, 3),
    Sketcher.Constraint("Horizontal", 2, 3, 3, 3),
    Sketcher.Constraint("Horizontal", 4, 3, 5, 3),
    Sketcher.Constraint("Horizontal", 6, 3, 7, 3),
    Sketcher.Constraint("Vertical", 1, 3, 2, 3),
    Sketcher.Constraint("Vertical", 0, 3, 3, 3),
    Sketcher.Constraint("Vertical", 5, 3, 6, 3),
    Sketcher.Constraint("Vertical", 4, 3, 7, 3),
    Sketcher.Constraint("Diameter", 0, 6.2),
    Sketcher.Constraint("DistanceY", 0, 3, -1, 1, 15.0),
    Sketcher.Constraint("DistanceY", 2, 3, -1, 1, 65.0),
    Sketcher.Constraint("DistanceX", 0, 3, 1, 3, 20.0),
    Sketcher.Constraint("DistanceX", 1, 3, 4, 3, 40.0),
    Sketcher.Constraint("DistanceX", 5, 3, 4, 3, 15.0),
    Sketcher.Constraint("DistanceY", 6, 3, 5, 3, 20.0),
    Sketcher.Constraint("DistanceX", -1, 1, 0, 3, 131.51),
    Sketcher.Constraint("DistanceY", -1, 1, 4, 3, 5.153701),
])
pocket7 = doc.addObject("PartDesign::Pocket", "Pocket006")
body.addObject(pocket7)
pocket7.Profile = sketch18
pocket7.Length = 10
pocket7.Reversed = True

# Sketch on YZ plane
sketch19 = doc.addObject("Sketcher::SketchObject", "Sketch018")
body.addObject(sketch19)
sketch19.AttachmentSupport = (doc.YZ_Plane, [""])
sketch19.MapMode = "FlatFace"
sketch19.AttachmentOffset = App.Placement(App.Vector(0, 0, 111.51), App.Rotation())
sketch19.addGeometry([
    Part.Circle(App.Vector(25.9, -100, 0), App.Vector(0, 0, 1), 3.1),  # 0
    Part.Circle(App.Vector(25.9, -80, 0), App.Vector(0, 0, 1), 3.1),  # 1
    Part.Circle(App.Vector(-15, -80, 0), App.Vector(0, 0, 1), 3.1),  # 2
    Part.Circle(App.Vector(-15, -100, 0), App.Vector(0, 0, 1), 3.1),  # 3
    Part.Circle(App.Vector(-65, -100, 0), App.Vector(0, 0, 1), 3.1),  # 4
    Part.Circle(App.Vector(-65, -80, 0), App.Vector(0, 0, 1), 3.1),  # 5
], False)
sketch19.addConstraint([
    Sketcher.Constraint("Equal", 0, 1),
    Sketcher.Constraint("Equal", 1, 2),
    Sketcher.Constraint("Equal", 2, 3),
    Sketcher.Constraint("Equal", 3, 4),
    Sketcher.Constraint("Equal", 4, 5),
    Sketcher.Constraint("Horizontal", 1, 3, 2, 3),
    Sketcher.Constraint("Horizontal", 0, 3, 3, 3),
    Sketcher.Constraint("Horizontal", 3, 3, 4, 3),
    Sketcher.Constraint("Horizontal", 2, 3, 5, 3),
    Sketcher.Constraint("Vertical", 0, 3, 1, 3),
    Sketcher.Constraint("Vertical", 2, 3, 3, 3),
    Sketcher.Constraint("Vertical", 4, 3, 5, 3),
    Sketcher.Constraint("Diameter", 0, 6.2),
    Sketcher.Constraint("DistanceY", 0, 3, -1, 1, 100.0),
    Sketcher.Constraint("DistanceY", 1, 3, -1, 1, 80.0),
    Sketcher.Constraint("DistanceX", 4, 3, 3, 3, 50.0),
    Sketcher.Constraint("DistanceX", -1, 1, 0, 3, 25.93),
    Sketcher.Constraint("DistanceX", 2, 3, -1, 1, 15.01),
])
pocket8 = doc.addObject("PartDesign::Pocket", "Pocket007")
body.addObject(pocket8)
pocket8.Profile = sketch19
pocket8.Length = 10
pocket8.Reversed = True

# Sketch on XY plane
sketch20 = doc.addObject("Sketcher::SketchObject", "Sketch019")
body.addObject(sketch20)
sketch20.AttachmentSupport = (doc.XY_Plane, [""])
sketch20.MapMode = "FlatFace"
sketch20.AttachmentOffset = App.Placement(App.Vector(0, 0, -60), App.Rotation())
sketch20.addGeometry(Part.Circle(App.Vector(127, -40, 0), App.Vector(0, 0, 1), 10), False)
sketch20.addConstraint([
    Sketcher.Constraint("Diameter", 0, 20.0),
    Sketcher.Constraint("DistanceY", 0, 3, -1, 1, 40.0),
    Sketcher.Constraint("DistanceX", -1, 1, 0, 3, 126.51),
])
pad12 = doc.addObject("PartDesign::Pad", "Pad011")
body.addObject(pad12)
pad12.Profile = sketch20
pad12.Length = 15

# Sketch on XY plane
sketch21 = doc.addObject("Sketcher::SketchObject", "Sketch020")
body.addObject(sketch21)
sketch21.AttachmentSupport = (doc.XY_Plane, [""])
sketch21.MapMode = "FlatFace"
sketch21.AttachmentOffset = App.Placement(App.Vector(0, 0, -53), App.Rotation())
sketch21.addGeometry([
    Part.Circle(App.Vector(127, -40, 0), App.Vector(0, 0, 1), 10),
    Part.Circle(App.Vector(127, -40, 0), App.Vector(0, 0, 1), 8),
], False)
sketch21.addConstraint([
    Sketcher.Constraint("Coincident", 1, 3, 0, 3),
    Sketcher.Constraint("Diameter", 0, 20.0),
    Sketcher.Constraint("Diameter", 1, 15.0),
    Sketcher.Constraint("DistanceY", 0, 3, -1, 1, 40.0),
    Sketcher.Constraint("DistanceX", -1, 1, 0, 3, 126.51),
])
pocket9 = doc.addObject("PartDesign::Pocket", "Pocket008")
body.addObject(pocket9)
pocket9.Profile = sketch21
pocket9.Length = 3
pocket9.Reversed = True

# Sketch on YZ plane
sketch22 = doc.addObject("Sketcher::SketchObject", "Sketch021")
body.addObject(sketch22)
sketch22.AttachmentSupport = (doc.YZ_Plane, [""])
sketch22.MapMode = "FlatFace"
sketch22.AttachmentOffset = App.Placement(App.Vector(0, 0, 111.51), App.Rotation())
sketch22.addGeometry(Part.Circle(App.Vector(-40, -75, 0), App.Vector(0, 0, 1), 10), False)
sketch22.addConstraint([
    Sketcher.Constraint("Diameter", 0, 20.0),
    Sketcher.Constraint("DistanceX", 0, 3, -1, 1, 40.0),
    Sketcher.Constraint("DistanceY", 0, 3, -1, 1, 75.0),
])
pad13 = doc.addObject("PartDesign::Pad", "Pad012")
body.addObject(pad13)
pad13.Profile = sketch22
pad13.Length = 15
pad13.Reversed = True

# Sketch on YZ plane
sketch23 = doc.addObject("Sketcher::SketchObject", "Sketch022")
body.addObject(sketch23)
sketch23.AttachmentSupport = (doc.YZ_Plane, [""])
sketch23.MapMode = "FlatFace"
sketch23.AttachmentOffset = App.Placement(App.Vector(0, 0, 104.51), App.Rotation())
sketch23.addGeometry([
    Part.Circle(App.Vector(-40, -75, 0), App.Vector(0, 0, 1), 10),
    Part.Circle(App.Vector(-40, -75, 0), App.Vector(0, 0, 1), 8),
], False)
sketch23.addConstraint([
    Sketcher.Constraint("Coincident", 1, 3, 0, 3),
    Sketcher.Constraint("Diameter", 0, 20.0),
    Sketcher.Constraint("Diameter", 1, 15.0),
    Sketcher.Constraint("DistanceX", 0, 3, -1, 1, 40.0),
    Sketcher.Constraint("DistanceY", 0, 3, -1, 1, 75.0),
])
pocket10 = doc.addObject("PartDesign::Pocket", "Pocket009")
body.addObject(pocket10)
pocket10.Profile = sketch23
pocket10.Length = 3

doc.recompute()
